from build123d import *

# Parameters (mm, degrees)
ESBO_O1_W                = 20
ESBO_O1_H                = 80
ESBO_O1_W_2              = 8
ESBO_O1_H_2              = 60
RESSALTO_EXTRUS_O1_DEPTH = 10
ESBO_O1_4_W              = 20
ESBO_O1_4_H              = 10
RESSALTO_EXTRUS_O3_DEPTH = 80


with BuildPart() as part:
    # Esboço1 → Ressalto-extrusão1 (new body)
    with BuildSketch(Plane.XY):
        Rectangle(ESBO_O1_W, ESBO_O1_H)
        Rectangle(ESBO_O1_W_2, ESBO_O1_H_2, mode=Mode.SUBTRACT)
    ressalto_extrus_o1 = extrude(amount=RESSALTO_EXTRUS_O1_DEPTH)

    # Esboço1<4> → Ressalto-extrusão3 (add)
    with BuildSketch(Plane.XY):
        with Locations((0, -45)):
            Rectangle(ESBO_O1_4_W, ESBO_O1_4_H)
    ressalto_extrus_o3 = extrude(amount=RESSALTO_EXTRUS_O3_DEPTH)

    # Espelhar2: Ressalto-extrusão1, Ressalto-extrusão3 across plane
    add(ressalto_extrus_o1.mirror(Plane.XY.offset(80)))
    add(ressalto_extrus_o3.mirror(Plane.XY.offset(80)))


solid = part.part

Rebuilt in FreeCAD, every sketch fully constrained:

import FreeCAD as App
import Part
import Sketcher

V = App.Vector


def add_polygon(sketch, points):
    """Adds a closed chain of lines whose ends are joined by coincident constraints."""
    first, n = sketch.GeometryCount, len(points)
    for a, b in zip(points, points[1:] + points[:1]):
        sketch.addGeometry(Part.LineSegment(App.Vector(*a, 0), App.Vector(*b, 0)), False)
    for i in range(n):
        sketch.addConstraint(Sketcher.Constraint("Coincident", first + i, 2, first + (i + 1) % n, 1))

doc = App.newDocument("Part")
body = doc.addObject("PartDesign::Body", "Body")

sketch1 = doc.addObject("Sketcher::SketchObject", "Sketch")
body.addObject(sketch1)
sketch1.AttachmentSupport = (doc.XY_Plane, [""])
sketch1.MapMode = "FlatFace"
add_polygon(sketch1, [(-10, 40), (-10, -40), (10, -40), (10, 40)])
add_polygon(sketch1, [(4, -30), (-4, -30), (-4, 30), (4, 30)])
sketch1.addConstraint([
    Sketcher.Constraint("Vertical", 0),
    Sketcher.Constraint("Horizontal", 1),
    Sketcher.Constraint("Vertical", 2),
    Sketcher.Constraint("Horizontal", 3),
    Sketcher.Constraint("Horizontal", 4),
    Sketcher.Constraint("Vertical", 5),
    Sketcher.Constraint("Horizontal", 6),
    Sketcher.Constraint("Vertical", 7),
    Sketcher.Constraint("Symmetric", 0, 2, 2, 2, -1, 1),
    Sketcher.Constraint("Symmetric", 4, 2, 6, 2, -1, 1),
    Sketcher.Constraint("DistanceX", 1, 1, 1, 2, 20.0),
    Sketcher.Constraint("DistanceX", 4, 2, 4, 1, 8.0),
    Sketcher.Constraint("DistanceY", 0, 2, 0, 1, 80.0),
    Sketcher.Constraint("DistanceY", 5, 1, 5, 2, 60.0),
])
pad1 = doc.addObject("PartDesign::Pad", "Pad")
body.addObject(pad1)
pad1.Profile = sketch1
pad1.Length = 10

sketch2 = doc.addObject("Sketcher::SketchObject", "Sketch001")
body.addObject(sketch2)
sketch2.AttachmentSupport = (doc.XY_Plane, [""])
sketch2.MapMode = "FlatFace"
add_polygon(sketch2, [(-10, -40), (-10, -50), (10, -50), (10, -40)])
sketch2.addConstraint([
    Sketcher.Constraint("Vertical", 0),
    Sketcher.Constraint("Horizontal", 1),
    Sketcher.Constraint("Vertical", 2),
    Sketcher.Constraint("Horizontal", 3),
    Sketcher.Constraint("DistanceX", 1, 1, 1, 2, 20.0),
    Sketcher.Constraint("DistanceY", 0, 2, 0, 1, 10.0),
    Sketcher.Constraint("DistanceX", 0, 2, -1, 1, 10.0),
    Sketcher.Constraint("DistanceY", 0, 2, -1, 1, 50.0),
])
pad2 = doc.addObject("PartDesign::Pad", "Pad001")
body.addObject(pad2)
pad2.Profile = sketch2
pad2.Length = 80
doc.recompute()

datumplane = doc.addObject("PartDesign::Plane", "DatumPlane")
body.addObject(datumplane)
datumplane.AttachmentSupport = (doc.XY_Plane, [""])
datumplane.MapMode = "FlatFace"
datumplane.AttachmentOffset = App.Placement(V(0, 0, 80), App.Rotation())
mirrored = doc.addObject("PartDesign::Mirrored", "Mirrored")
body.addObject(mirrored)
mirrored.Originals = [pad1, pad2]
mirrored.MirrorPlane = (datumplane, [""])
body.Tip = mirrored

doc.recompute()
